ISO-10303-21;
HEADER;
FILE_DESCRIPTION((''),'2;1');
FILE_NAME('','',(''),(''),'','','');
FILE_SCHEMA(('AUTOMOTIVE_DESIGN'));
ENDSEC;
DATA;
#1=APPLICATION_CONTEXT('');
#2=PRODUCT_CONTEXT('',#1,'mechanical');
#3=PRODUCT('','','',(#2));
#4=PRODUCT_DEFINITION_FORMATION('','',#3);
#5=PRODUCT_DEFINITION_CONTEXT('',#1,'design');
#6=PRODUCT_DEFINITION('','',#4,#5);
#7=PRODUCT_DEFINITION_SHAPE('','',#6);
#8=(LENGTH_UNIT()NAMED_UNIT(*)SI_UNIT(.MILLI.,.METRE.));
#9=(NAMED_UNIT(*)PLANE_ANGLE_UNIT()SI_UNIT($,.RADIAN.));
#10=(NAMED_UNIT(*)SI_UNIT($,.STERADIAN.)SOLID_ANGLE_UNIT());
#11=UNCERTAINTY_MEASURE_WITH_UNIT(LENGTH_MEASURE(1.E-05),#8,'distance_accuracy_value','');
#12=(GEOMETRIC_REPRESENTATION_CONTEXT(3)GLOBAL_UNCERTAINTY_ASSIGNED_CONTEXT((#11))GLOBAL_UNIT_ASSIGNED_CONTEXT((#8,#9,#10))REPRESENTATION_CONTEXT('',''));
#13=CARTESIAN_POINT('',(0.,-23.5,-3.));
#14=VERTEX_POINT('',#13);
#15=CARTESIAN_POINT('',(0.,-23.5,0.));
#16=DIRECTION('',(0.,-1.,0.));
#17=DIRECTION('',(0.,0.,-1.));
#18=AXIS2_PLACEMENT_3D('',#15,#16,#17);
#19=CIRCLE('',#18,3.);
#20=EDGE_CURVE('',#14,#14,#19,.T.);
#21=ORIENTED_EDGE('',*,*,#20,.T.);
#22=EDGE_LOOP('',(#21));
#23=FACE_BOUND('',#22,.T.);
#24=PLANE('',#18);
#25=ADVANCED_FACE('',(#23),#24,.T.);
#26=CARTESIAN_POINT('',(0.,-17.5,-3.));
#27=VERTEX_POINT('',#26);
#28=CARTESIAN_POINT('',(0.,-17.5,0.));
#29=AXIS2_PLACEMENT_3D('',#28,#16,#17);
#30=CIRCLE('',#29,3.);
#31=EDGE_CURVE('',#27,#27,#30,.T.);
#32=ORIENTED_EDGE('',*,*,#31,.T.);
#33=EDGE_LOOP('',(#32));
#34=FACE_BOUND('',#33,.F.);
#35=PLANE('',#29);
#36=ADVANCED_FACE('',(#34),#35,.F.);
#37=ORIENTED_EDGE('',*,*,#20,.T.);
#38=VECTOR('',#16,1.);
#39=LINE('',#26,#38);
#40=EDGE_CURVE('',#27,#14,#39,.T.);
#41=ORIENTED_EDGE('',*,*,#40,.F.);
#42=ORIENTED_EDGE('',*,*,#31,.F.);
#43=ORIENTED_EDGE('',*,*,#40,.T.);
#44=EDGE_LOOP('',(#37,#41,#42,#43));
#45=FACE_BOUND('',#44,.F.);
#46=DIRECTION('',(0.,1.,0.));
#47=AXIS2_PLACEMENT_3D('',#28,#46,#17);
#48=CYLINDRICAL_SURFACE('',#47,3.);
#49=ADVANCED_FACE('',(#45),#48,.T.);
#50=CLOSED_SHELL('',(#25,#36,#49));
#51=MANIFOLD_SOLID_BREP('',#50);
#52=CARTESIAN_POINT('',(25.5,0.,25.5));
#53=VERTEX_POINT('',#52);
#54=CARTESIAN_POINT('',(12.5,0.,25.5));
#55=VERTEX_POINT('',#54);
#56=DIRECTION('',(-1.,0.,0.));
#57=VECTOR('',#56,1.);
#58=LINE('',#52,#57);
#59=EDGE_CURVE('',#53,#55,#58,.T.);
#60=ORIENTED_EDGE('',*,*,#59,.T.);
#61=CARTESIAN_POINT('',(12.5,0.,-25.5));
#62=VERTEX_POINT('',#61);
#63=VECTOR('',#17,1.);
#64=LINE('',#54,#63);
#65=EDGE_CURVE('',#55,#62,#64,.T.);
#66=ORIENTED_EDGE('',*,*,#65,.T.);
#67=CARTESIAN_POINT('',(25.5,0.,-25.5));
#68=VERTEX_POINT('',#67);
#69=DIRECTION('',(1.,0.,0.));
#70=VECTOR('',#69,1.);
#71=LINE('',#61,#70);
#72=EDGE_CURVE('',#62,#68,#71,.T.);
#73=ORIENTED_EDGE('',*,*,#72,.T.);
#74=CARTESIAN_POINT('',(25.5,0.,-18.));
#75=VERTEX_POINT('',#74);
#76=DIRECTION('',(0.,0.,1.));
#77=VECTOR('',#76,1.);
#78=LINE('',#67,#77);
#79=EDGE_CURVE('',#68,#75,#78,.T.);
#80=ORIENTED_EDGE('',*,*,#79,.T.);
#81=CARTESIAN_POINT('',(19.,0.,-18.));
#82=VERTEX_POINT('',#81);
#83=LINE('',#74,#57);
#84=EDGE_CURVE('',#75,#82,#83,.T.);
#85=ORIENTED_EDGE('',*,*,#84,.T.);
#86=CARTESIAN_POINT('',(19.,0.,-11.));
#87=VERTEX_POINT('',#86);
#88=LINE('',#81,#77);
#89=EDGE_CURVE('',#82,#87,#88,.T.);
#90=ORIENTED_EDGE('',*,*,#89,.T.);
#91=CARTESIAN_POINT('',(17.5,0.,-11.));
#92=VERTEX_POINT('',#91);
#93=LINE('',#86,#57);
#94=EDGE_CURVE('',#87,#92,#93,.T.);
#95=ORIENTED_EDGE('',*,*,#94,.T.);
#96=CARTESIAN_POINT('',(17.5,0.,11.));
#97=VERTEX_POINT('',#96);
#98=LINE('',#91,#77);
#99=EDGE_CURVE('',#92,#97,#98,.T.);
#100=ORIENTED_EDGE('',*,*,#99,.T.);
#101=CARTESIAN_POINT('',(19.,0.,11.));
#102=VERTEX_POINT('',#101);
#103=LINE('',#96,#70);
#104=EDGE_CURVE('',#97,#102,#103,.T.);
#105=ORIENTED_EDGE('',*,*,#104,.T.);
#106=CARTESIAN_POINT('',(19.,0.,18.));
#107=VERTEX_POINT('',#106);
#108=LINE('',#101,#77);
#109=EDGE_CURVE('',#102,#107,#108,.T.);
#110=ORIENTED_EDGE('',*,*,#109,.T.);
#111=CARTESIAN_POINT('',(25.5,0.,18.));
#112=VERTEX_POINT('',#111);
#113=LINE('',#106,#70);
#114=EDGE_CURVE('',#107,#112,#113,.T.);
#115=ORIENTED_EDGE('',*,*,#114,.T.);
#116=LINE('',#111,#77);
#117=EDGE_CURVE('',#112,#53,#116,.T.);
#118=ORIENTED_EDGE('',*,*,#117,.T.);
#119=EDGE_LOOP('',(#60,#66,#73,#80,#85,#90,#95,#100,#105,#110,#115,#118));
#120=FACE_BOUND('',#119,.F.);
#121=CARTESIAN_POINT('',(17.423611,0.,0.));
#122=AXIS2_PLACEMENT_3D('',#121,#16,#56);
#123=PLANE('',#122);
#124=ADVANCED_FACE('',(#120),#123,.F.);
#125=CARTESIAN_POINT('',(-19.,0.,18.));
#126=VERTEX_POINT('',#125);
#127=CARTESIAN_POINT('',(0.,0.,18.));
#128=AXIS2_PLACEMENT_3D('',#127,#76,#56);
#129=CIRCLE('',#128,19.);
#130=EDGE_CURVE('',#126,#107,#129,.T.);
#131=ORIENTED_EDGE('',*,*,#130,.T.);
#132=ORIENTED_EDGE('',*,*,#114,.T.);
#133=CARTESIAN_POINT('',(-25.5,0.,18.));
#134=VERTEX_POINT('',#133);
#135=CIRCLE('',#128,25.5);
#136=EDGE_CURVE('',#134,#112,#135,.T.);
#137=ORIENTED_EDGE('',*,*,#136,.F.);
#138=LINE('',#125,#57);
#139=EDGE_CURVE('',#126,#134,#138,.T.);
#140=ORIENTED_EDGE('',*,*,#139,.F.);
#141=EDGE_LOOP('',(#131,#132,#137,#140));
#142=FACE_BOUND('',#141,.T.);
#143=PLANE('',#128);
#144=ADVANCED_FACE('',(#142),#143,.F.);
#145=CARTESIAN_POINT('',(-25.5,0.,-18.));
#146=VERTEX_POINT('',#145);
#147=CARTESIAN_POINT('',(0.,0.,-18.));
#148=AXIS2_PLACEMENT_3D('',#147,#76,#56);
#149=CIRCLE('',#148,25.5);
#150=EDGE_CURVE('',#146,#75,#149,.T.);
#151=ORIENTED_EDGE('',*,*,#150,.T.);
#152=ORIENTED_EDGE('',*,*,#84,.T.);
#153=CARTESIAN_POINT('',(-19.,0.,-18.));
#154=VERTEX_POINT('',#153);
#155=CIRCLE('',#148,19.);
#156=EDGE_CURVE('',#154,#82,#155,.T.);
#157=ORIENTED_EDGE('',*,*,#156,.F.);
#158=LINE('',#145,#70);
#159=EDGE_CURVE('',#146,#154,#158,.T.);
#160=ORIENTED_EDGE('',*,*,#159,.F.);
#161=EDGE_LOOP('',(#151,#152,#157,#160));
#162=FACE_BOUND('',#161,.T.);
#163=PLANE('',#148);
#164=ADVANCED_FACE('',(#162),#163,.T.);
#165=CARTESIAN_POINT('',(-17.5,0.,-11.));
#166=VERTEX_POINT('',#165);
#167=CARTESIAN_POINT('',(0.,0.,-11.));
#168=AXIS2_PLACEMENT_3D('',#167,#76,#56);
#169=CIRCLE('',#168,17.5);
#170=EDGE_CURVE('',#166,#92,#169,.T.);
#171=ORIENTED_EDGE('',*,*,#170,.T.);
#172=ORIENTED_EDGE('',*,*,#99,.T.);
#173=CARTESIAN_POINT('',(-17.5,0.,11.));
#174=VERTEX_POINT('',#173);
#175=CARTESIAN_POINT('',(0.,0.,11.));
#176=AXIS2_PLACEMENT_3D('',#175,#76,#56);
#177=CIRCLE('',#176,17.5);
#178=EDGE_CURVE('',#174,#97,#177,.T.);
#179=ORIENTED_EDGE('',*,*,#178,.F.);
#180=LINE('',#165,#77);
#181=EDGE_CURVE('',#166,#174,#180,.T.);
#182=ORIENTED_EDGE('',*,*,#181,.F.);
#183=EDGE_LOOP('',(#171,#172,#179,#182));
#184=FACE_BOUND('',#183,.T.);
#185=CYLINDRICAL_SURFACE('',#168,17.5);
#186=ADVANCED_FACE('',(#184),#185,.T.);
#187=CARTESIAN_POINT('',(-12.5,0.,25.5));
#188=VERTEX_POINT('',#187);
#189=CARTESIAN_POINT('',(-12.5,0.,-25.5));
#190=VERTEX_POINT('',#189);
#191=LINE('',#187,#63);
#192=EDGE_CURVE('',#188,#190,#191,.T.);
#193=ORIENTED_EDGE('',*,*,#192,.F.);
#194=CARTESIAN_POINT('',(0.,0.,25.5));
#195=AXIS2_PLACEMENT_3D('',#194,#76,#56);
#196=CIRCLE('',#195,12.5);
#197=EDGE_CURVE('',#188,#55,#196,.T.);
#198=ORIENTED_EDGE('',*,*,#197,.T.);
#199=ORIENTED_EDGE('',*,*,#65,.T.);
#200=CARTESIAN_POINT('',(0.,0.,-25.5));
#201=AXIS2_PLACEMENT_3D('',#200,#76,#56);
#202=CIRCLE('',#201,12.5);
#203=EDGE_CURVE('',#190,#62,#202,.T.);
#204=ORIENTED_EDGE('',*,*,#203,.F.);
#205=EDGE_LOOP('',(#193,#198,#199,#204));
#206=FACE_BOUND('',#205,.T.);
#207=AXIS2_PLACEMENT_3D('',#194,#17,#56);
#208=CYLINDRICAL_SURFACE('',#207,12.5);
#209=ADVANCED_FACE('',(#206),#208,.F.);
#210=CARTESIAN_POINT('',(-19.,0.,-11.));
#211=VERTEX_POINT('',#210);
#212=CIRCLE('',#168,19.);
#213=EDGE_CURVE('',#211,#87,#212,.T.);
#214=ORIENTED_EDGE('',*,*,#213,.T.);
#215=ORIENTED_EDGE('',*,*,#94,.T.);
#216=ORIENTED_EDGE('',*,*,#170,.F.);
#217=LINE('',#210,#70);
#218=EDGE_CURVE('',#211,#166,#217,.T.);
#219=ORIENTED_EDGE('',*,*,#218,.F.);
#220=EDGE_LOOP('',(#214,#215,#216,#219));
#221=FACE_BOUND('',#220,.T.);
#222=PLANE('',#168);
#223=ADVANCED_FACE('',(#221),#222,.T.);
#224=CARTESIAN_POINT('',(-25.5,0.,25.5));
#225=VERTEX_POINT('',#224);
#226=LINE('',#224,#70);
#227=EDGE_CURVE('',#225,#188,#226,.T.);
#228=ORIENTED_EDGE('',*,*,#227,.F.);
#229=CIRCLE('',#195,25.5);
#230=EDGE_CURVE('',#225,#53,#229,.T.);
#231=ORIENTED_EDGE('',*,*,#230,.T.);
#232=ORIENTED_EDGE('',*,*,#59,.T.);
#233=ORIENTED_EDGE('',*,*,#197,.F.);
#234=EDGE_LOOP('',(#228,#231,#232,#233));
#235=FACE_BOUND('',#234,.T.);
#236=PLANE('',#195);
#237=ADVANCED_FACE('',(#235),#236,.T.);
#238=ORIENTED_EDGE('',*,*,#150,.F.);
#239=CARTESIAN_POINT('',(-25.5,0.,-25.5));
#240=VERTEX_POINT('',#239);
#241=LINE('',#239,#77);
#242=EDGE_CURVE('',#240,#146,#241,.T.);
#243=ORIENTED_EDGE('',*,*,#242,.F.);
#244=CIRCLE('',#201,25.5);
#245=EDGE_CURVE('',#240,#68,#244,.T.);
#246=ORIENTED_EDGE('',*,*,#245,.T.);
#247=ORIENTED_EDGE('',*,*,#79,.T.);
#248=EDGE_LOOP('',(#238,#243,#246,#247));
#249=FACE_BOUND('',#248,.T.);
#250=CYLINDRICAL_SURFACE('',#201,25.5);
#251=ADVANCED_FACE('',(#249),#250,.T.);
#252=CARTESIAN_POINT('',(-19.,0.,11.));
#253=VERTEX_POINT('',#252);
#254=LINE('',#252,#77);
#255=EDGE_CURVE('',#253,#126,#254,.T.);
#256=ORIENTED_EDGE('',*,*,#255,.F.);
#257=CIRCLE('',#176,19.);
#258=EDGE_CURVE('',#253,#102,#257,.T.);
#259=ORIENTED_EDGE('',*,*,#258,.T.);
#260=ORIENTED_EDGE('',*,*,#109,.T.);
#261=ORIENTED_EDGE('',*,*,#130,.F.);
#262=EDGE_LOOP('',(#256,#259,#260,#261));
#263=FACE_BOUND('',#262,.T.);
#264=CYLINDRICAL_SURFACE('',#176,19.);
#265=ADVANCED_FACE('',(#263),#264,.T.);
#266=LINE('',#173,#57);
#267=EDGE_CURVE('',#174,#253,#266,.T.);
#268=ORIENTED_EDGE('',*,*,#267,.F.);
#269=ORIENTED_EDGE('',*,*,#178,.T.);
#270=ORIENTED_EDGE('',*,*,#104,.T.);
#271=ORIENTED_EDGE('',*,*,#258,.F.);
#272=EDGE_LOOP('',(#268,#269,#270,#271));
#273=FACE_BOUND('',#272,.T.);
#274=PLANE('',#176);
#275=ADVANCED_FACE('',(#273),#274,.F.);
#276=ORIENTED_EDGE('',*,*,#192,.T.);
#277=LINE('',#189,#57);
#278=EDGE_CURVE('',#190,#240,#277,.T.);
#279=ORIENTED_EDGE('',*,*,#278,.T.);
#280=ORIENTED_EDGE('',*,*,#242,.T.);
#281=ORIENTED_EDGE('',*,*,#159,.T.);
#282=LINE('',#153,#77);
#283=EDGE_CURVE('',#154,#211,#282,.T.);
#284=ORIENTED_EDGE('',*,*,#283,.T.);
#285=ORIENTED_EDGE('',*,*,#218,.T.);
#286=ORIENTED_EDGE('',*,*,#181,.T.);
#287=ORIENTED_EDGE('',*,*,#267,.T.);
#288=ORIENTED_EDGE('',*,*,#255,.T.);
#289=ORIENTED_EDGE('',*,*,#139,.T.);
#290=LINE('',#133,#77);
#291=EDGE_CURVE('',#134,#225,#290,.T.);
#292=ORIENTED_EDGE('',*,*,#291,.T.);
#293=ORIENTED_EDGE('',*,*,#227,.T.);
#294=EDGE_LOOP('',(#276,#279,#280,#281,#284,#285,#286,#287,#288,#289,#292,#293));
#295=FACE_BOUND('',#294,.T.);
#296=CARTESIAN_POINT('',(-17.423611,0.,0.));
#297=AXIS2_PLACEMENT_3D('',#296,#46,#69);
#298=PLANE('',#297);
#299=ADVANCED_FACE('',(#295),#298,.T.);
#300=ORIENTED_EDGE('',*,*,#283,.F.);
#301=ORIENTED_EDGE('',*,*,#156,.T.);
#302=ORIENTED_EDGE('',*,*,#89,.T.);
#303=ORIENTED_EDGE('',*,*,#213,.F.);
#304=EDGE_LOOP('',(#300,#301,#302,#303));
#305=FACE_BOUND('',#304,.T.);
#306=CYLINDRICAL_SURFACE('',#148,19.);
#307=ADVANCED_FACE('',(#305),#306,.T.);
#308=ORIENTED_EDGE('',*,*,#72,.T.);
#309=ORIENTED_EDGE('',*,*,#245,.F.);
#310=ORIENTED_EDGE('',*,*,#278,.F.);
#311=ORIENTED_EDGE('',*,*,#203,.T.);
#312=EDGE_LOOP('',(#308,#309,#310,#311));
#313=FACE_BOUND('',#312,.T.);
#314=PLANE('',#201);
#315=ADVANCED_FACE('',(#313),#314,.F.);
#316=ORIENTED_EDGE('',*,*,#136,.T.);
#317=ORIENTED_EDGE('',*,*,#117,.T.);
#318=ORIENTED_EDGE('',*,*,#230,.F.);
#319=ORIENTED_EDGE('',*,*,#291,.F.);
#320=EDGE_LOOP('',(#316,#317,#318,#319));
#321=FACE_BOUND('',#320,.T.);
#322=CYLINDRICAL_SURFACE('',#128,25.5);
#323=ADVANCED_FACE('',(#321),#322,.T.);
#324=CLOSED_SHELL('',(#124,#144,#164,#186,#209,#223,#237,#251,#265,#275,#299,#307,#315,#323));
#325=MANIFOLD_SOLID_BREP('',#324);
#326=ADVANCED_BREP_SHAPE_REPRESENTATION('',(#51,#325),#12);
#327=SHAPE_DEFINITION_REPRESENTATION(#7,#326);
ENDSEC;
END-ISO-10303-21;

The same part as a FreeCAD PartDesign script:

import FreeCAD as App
import Part
import Sketcher

V = App.Vector


def add_polygon(sketch, points):
    """Adds a closed chain of lines whose ends are joined by coincident constraints."""
    first, n = sketch.GeometryCount, len(points)
    for a, b in zip(points, points[1:] + points[:1]):
        sketch.addGeometry(Part.LineSegment(App.Vector(*a, 0), App.Vector(*b, 0)), False)
    for i in range(n):
        sketch.addConstraint(Sketcher.Constraint("Coincident", first + i, 2, first + (i + 1) % n, 1))

doc = App.newDocument("Part")
body = doc.addObject("PartDesign::Body", "Body")

# Sketch on XZ plane
sketch1 = body.newObject("Sketcher::SketchObject", "Sketch")
sketch1.AttachmentSupport = (doc.getObject("XZ_Plane"), [""])
sketch1.MapMode = "FlatFace"
add_polygon(sketch1, [(-25.5, -25.5), (-25.5, -18), (-19, -18), (-19, -11), (-17.5, -11), (-17.5, 11), (-19, 11), (-19, 18), (-25.5, 18), (-25.5, 25.5), (-12.5, 25.5), (-12.5, -25.5)])  # lines 0-11
sketch1.addConstraint([
    Sketcher.Constraint("Vertical", 0),
    Sketcher.Constraint("Horizontal", 1),
    Sketcher.Constraint("Vertical", 2),
    Sketcher.Constraint("Horizontal", 3),
    Sketcher.Constraint("Vertical", 4),
    Sketcher.Constraint("Horizontal", 5),
    Sketcher.Constraint("Vertical", 6),
    Sketcher.Constraint("Horizontal", 7),
    Sketcher.Constraint("Vertical", 8),
    Sketcher.Constraint("Horizontal", 9),
    Sketcher.Constraint("Vertical", 10),
    Sketcher.Constraint("Horizontal", 11),
    Sketcher.Constraint("Symmetric", 2, 2, 5, 2, -1),
    Sketcher.Constraint("Symmetric", 0, 2, 7, 2, -1),
    Sketcher.Constraint("Equal", 0, 8),
    Sketcher.Constraint("DistanceX", 9, 1, 9, 2, 13.0),
    Sketcher.Constraint("DistanceY", 2, 1, 2, 2, 7.0),
    Sketcher.Constraint("DistanceY", 4, 1, 4, 2, 22.0),
    Sketcher.Constraint("DistanceY", 10, 2, 10, 1, 51.0),
    Sketcher.Constraint("DistanceX", 1, 1, 1, 2, 6.5),
    Sketcher.Constraint("DistanceX", 3, 1, 3, 2, 1.5),
    Sketcher.Constraint("DistanceX", 1, 2, -1, 1, 19.0),
])
revolution = body.newObject("PartDesign::Revolution", "Revolution")
revolution.Profile = sketch1
revolution.ReferenceAxis = (sketch1, ["V_Axis"])
revolution.Angle = 180
body2 = doc.addObject("PartDesign::Body", "Body001")

# Sketch on XZ plane
sketch2 = body2.newObject("Sketcher::SketchObject", "Sketch001")
sketch2.AttachmentSupport = (doc.getObject("XZ_Plane001"), [""])
sketch2.MapMode = "FlatFace"
sketch2.AttachmentOffset = App.Placement(V(0, 0, 17.5), App.Rotation())
sketch2.addGeometry(Part.Circle(V(0, 0, 0), V(0, 0, 1), 3), False)
sketch2.addConstraint([
    Sketcher.Constraint("Coincident", 0, 3, -1, 1),
    Sketcher.Constraint("Diameter", 0, 6.0),
])
pad1 = body2.newObject("PartDesign::Pad", "Pad")
pad1.Profile = sketch2
pad1.Length = 6

doc.recompute()
